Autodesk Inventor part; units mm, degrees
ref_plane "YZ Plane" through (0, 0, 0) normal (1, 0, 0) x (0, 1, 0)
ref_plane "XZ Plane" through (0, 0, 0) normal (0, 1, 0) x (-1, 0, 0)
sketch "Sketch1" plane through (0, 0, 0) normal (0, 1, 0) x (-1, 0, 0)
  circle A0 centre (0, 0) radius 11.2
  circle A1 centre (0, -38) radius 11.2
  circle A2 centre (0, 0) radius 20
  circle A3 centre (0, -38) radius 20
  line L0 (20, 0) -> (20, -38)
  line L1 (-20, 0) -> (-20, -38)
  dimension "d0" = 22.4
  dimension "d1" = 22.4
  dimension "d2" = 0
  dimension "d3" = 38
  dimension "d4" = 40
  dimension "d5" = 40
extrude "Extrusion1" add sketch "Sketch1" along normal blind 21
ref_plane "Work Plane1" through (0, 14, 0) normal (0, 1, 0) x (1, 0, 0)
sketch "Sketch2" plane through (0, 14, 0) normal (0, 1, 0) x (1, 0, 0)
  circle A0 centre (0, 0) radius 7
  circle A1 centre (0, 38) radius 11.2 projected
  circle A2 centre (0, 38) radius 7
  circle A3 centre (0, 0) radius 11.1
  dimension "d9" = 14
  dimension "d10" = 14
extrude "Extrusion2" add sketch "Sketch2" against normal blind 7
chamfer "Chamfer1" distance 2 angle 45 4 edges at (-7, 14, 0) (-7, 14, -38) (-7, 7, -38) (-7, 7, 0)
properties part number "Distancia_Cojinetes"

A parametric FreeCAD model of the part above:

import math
import FreeCAD as App
import Part
import Sketcher
Q = App.Units.Quantity


def edges_at(feature, points):
    """Names of the edges that pass closest to the given points."""
    edges = feature.Shape.Edges
    near = lambda p: min(range(len(edges)), key=lambda i: edges[i].distToShape(Part.Vertex(*p))[0])
    return sorted({f"Edge{near(p) + 1}" for p in points})

doc = App.newDocument("Part")
body = doc.addObject("PartDesign::Body", "Body")
body.AllowCompound = True

# Sketch on XZ plane
sketch1 = body.newObject("Sketcher::SketchObject", "Sketch")
sketch1.AttachmentSupport = (doc.getObject("XZ_Plane"), [""])
sketch1.MapMode = "FlatFace"
sketch1.addGeometry(Part.ArcOfCircle(Part.Circle(App.Vector(0, 0, 0), App.Vector(0, 0, 1), 20), math.radians(0), math.radians(180)), False)
sketch1.addGeometry(Part.LineSegment(App.Vector(20, 0, 0), App.Vector(20, -38, 0)), False)
sketch1.addGeometry(Part.ArcOfCircle(Part.Circle(App.Vector(0, -38, 0), App.Vector(0, 0, 1), 20), math.radians(180), math.radians(360)), False)
sketch1.addGeometry(Part.LineSegment(App.Vector(-20, -38, 0), App.Vector(-20, 0, 0)), False)
sketch1.addGeometry(Part.Circle(App.Vector(0, 0, 0), App.Vector(0, 0, 1), 11), False)
sketch1.addGeometry(Part.Circle(App.Vector(0, -38, 0), App.Vector(0, 0, 1), 11), False)
sketch1.addConstraint(Sketcher.Constraint("Tangent", 0, 1, 1, 1))
sketch1.addConstraint(Sketcher.Constraint("Tangent", 1, 2, 2, 2))
sketch1.addConstraint(Sketcher.Constraint("Tangent", 2, 1, 3, 1))
sketch1.addConstraint(Sketcher.Constraint("Tangent", 3, 2, 0, 2))
sketch1.addConstraint(Sketcher.Constraint("Vertical", 1))
sketch1.addConstraint(Sketcher.Constraint("Vertical", 3))
sketch1.addConstraint(Sketcher.Constraint("Coincident", 0, 3, -1, 1))
sketch1.addConstraint(Sketcher.Constraint("Coincident", 4, 3, -1, 1))
sketch1.addConstraint(Sketcher.Constraint("Coincident", 5, 3, 2, 3))
sketch1.addConstraint(Sketcher.Constraint("Equal", 4, 5))
sketch1.addConstraint(Sketcher.Constraint("Radius", 0, Q("20 mm")))
sketch1.addConstraint(Sketcher.Constraint("Diameter", 4, Q("22.4 mm")))
sketch1.addConstraint(Sketcher.Constraint("DistanceY", 1, 2, 1, 1, Q("38 mm")))
pad1 = body.newObject("PartDesign::Pad", "Pad")
pad1.Profile = sketch1
pad1.Length = 21
pad1.Reversed = True

# Sketch on XZ plane
sketch2 = body.newObject("Sketcher::SketchObject", "Sketch001")
sketch2.AttachmentSupport = (doc.getObject("XZ_Plane"), [""])
sketch2.MapMode = "FlatFace"
sketch2.AttachmentOffset = App.Placement(App.Vector(0, 0, -14), App.Rotation())
sketch2.addGeometry(Part.Circle(App.Vector(0, -38, 0), App.Vector(0, 0, 1), 11), False)
sketch2.addGeometry(Part.Circle(App.Vector(0, -38, 0), App.Vector(0, 0, 1), 7), False)
sketch2.addGeometry(Part.Circle(App.Vector(0, 0, 0), App.Vector(0, 0, 1), 11), False)
sketch2.addGeometry(Part.Circle(App.Vector(0, 0, 0), App.Vector(0, 0, 1), 7), False)
sketch2.addConstraint(Sketcher.Constraint("Coincident", 2, 3, -1, 1))
sketch2.addConstraint(Sketcher.Constraint("Coincident", 3, 3, -1, 1))
sketch2.addConstraint(Sketcher.Constraint("Coincident", 1, 3, 0, 3))
sketch2.addConstraint(Sketcher.Constraint("Equal", 1, 3))
sketch2.addConstraint(Sketcher.Constraint("PointOnObject", 0, 3, -2))
sketch2.addConstraint(Sketcher.Constraint("Diameter", 1, Q("14 mm")))
sketch2.addConstraint(Sketcher.Constraint("Diameter", 0, Q("22.4 mm")))
sketch2.addConstraint(Sketcher.Constraint("Diameter", 2, Q("22.2 mm")))
sketch2.addConstraint(Sketcher.Constraint("DistanceY", 0, 3, -1, 1, Q("38 mm")))
pad2 = body.newObject("PartDesign::Pad", "Pad001")
pad2.Profile = sketch2
pad2.Length = 7
doc.recompute()

chamfer = body.newObject("PartDesign::Chamfer", "Chamfer")
chamfer.Base = (pad2, edges_at(pad2, [
    (-7, 14, 0),
    (-7, 14, -38),
    (-7, 7, -38),
    (-7, 7, 0),
]))
chamfer.Size = 2

doc.recompute()
